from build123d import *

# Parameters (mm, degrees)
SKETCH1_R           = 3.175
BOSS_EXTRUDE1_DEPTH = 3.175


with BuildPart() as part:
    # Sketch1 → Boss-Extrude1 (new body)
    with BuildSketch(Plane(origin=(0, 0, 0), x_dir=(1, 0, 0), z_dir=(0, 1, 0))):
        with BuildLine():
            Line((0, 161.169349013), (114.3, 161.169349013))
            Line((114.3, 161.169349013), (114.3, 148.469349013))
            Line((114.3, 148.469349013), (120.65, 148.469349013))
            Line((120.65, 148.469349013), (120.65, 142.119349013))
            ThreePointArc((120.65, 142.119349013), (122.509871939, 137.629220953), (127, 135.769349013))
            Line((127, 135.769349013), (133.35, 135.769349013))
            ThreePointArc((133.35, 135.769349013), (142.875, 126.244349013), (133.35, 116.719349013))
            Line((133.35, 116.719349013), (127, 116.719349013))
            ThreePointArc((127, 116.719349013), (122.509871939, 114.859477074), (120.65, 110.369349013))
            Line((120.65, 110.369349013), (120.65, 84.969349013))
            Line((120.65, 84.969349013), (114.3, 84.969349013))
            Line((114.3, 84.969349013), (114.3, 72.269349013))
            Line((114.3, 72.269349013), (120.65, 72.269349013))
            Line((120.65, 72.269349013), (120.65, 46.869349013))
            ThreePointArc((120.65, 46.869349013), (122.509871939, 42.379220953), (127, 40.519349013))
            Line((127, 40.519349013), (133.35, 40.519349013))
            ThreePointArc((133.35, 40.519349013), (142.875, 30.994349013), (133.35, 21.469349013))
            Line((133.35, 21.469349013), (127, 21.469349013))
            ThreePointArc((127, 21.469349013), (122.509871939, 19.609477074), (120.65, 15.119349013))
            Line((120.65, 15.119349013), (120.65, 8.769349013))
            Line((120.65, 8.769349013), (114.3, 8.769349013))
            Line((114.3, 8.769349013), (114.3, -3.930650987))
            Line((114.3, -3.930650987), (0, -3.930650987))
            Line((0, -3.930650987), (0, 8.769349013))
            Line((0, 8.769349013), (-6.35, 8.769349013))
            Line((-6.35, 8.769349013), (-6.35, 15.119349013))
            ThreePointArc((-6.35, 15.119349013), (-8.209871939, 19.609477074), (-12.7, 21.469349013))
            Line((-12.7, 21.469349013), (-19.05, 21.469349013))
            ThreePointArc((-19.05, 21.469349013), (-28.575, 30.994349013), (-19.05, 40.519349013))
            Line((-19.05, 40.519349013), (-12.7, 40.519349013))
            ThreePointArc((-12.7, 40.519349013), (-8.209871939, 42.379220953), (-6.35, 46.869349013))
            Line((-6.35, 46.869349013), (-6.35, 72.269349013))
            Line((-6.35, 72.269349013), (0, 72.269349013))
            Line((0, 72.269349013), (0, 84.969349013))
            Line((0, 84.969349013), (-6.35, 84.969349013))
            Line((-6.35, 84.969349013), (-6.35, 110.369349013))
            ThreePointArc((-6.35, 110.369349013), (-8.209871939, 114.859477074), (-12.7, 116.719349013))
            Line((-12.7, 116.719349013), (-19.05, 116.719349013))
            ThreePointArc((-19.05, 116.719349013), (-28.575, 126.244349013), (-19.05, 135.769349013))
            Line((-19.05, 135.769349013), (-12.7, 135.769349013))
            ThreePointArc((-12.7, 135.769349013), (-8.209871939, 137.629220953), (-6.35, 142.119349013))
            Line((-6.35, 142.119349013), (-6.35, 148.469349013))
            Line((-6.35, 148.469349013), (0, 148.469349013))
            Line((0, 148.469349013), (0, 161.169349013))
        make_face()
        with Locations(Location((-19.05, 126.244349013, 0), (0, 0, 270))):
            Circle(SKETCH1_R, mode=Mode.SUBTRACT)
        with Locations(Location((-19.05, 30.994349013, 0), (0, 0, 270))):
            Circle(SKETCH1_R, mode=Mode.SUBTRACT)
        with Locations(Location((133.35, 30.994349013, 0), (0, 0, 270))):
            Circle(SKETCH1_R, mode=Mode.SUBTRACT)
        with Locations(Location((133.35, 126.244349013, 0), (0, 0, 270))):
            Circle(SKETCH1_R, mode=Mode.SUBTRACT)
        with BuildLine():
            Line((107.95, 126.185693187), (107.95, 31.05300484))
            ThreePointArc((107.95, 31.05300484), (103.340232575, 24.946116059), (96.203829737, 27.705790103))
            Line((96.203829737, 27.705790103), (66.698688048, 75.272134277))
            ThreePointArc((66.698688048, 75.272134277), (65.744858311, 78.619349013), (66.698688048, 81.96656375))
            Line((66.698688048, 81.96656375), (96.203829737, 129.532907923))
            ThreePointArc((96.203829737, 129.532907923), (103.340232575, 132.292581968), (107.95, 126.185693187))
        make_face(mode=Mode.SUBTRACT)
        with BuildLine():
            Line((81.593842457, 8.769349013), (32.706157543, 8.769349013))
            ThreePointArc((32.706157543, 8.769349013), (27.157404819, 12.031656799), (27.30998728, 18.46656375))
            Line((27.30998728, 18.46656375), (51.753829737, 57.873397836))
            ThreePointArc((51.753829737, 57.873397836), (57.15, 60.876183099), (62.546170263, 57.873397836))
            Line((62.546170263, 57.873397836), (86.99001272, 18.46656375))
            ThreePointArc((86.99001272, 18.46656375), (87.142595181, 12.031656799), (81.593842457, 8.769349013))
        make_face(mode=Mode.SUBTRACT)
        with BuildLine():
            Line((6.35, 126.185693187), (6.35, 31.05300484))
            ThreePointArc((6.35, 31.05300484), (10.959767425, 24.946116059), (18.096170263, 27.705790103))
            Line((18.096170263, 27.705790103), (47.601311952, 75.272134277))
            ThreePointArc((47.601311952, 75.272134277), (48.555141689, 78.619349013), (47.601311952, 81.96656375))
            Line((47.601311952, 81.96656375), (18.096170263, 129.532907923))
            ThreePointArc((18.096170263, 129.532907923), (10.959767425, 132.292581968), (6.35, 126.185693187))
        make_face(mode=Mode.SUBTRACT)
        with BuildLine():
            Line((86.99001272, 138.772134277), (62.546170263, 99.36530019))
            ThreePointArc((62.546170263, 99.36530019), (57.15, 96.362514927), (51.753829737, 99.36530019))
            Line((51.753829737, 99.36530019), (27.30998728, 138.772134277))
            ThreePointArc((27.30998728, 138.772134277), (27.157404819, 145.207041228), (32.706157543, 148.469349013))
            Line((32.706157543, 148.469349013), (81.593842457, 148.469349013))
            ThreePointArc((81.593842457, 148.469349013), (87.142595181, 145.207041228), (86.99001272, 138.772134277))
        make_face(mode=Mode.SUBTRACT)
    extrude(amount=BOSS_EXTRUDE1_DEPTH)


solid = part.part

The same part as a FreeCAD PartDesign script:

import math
import FreeCAD as App
import Part
import Sketcher
Q = App.Units.Quantity

doc = App.newDocument("Part")
body = doc.addObject("PartDesign::Body", "Body")

sketch1 = body.newObject("Sketcher::SketchObject", "Sketch")
sketch1.AttachmentSupport = (doc.getObject("XZ_Plane"), [""])
sketch1.MapMode = "FlatFace"
sketch1.addGeometry([
    Part.LineSegment(App.Vector(114.3, -161.169349, 0), App.Vector(0, -161.169349, 0)),
    Part.LineSegment(App.Vector(0, -161.169349, 0), App.Vector(0, -148.469349, 0)),
    Part.LineSegment(App.Vector(0, -148.469349, 0), App.Vector(-6.35, -148.469349, 0)),
    Part.LineSegment(App.Vector(-6.35, -148.469349, 0), App.Vector(-6.35, -142.119349, 0)),
    Part.ArcOfCircle(Part.Circle(App.Vector(-12.7, -142.119349, 0), App.Vector(0, 0, 1), 6.35), math.radians(0), math.radians(90)),
    Part.LineSegment(App.Vector(-12.7, -135.769349, 0), App.Vector(-19.05, -135.769349, 0)),
    Part.ArcOfCircle(Part.Circle(App.Vector(-19.05, -126.244349, 0), App.Vector(0, 0, 1), 9.525), math.radians(90), math.radians(270)),
    Part.LineSegment(App.Vector(-19.05, -116.719349, 0), App.Vector(-12.7, -116.719349, 0)),
    Part.ArcOfCircle(Part.Circle(App.Vector(-12.7, -110.369349, 0), App.Vector(0, 0, 1), 6.35), math.radians(-90), math.radians(0)),
    Part.LineSegment(App.Vector(-6.35, -110.369349, 0), App.Vector(-6.35, -84.969349, 0)),
    Part.LineSegment(App.Vector(-6.35, -84.969349, 0), App.Vector(0, -84.969349, 0)),
    Part.LineSegment(App.Vector(0, -84.969349, 0), App.Vector(0, -72.269349, 0)),
    Part.LineSegment(App.Vector(0, -72.269349, 0), App.Vector(-6.35, -72.269349, 0)),
    Part.LineSegment(App.Vector(-6.35, -72.269349, 0), App.Vector(-6.35, -46.869349, 0)),
    Part.ArcOfCircle(Part.Circle(App.Vector(-12.7, -46.869349, 0), App.Vector(0, 0, 1), 6.35), math.radians(0), math.radians(90)),
    Part.LineSegment(App.Vector(-12.7, -40.519349, 0), App.Vector(-19.05, -40.519349, 0)),
    Part.ArcOfCircle(Part.Circle(App.Vector(-19.05, -30.994349, 0), App.Vector(0, 0, 1), 9.525), math.radians(90), math.radians(270)),
    Part.LineSegment(App.Vector(-19.05, -21.469349, 0), App.Vector(-12.7, -21.469349, 0)),
    Part.ArcOfCircle(Part.Circle(App.Vector(-12.7, -15.119349, 0), App.Vector(0, 0, 1), 6.35), math.radians(-90), math.radians(0)),
    Part.LineSegment(App.Vector(-6.35, -15.119349, 0), App.Vector(-6.35, -8.769349, 0)),
    Part.LineSegment(App.Vector(-6.35, -8.769349, 0), App.Vector(0, -8.769349, 0)),
    Part.LineSegment(App.Vector(0, -8.769349, 0), App.Vector(0, 3.930651, 0)),
    Part.LineSegment(App.Vector(0, 3.930651, 0), App.Vector(114.3, 3.930651, 0)),
    Part.LineSegment(App.Vector(114.3, 3.930651, 0), App.Vector(114.3, -8.769349, 0)),
    Part.LineSegment(App.Vector(114.3, -8.769349, 0), App.Vector(120.65, -8.769349, 0)),
    Part.LineSegment(App.Vector(120.65, -8.769349, 0), App.Vector(120.65, -15.119349, 0)),
    Part.ArcOfCircle(Part.Circle(App.Vector(127, -15.119349, 0), App.Vector(0, 0, 1), 6.35), math.radians(180), math.radians(270)),
    Part.LineSegment(App.Vector(127, -21.469349, 0), App.Vector(133.35, -21.469349, 0)),
    Part.ArcOfCircle(Part.Circle(App.Vector(133.35, -30.994349, 0), App.Vector(0, 0, 1), 9.525), math.radians(-90), math.radians(90)),
    Part.LineSegment(App.Vector(133.35, -40.519349, 0), App.Vector(127, -40.519349, 0)),
    Part.ArcOfCircle(Part.Circle(App.Vector(127, -46.869349, 0), App.Vector(0, 0, 1), 6.35), math.radians(90), math.radians(180)),
    Part.LineSegment(App.Vector(120.65, -46.869349, 0), App.Vector(120.65, -72.269349, 0)),
    Part.LineSegment(App.Vector(120.65, -72.269349, 0), App.Vector(114.3, -72.269349, 0)),
    Part.LineSegment(App.Vector(114.3, -72.269349, 0), App.Vector(114.3, -84.969349, 0)),
    Part.LineSegment(App.Vector(114.3, -84.969349, 0), App.Vector(120.65, -84.969349, 0)),
    Part.LineSegment(App.Vector(120.65, -84.969349, 0), App.Vector(120.65, -110.369349, 0)),
    Part.ArcOfCircle(Part.Circle(App.Vector(127, -110.369349, 0), App.Vector(0, 0, 1), 6.35), math.radians(180), math.radians(270)),
    Part.LineSegment(App.Vector(127, -116.719349, 0), App.Vector(133.35, -116.719349, 0)),
    Part.ArcOfCircle(Part.Circle(App.Vector(133.35, -126.244349, 0), App.Vector(0, 0, 1), 9.525), math.radians(-90), math.radians(90)),
    Part.LineSegment(App.Vector(133.35, -135.769349, 0), App.Vector(127, -135.769349, 0)),
    Part.ArcOfCircle(Part.Circle(App.Vector(127, -142.119349, 0), App.Vector(0, 0, 1), 6.35), math.radians(90), math.radians(180)),
    Part.LineSegment(App.Vector(120.65, -142.119349, 0), App.Vector(120.65, -148.469349, 0)),
    Part.LineSegment(App.Vector(120.65, -148.469349, 0), App.Vector(114.3, -148.469349, 0)),
    Part.LineSegment(App.Vector(114.3, -148.469349, 0), App.Vector(114.3, -161.169349, 0)),
    Part.Circle(App.Vector(133.35, -30.994349, 0), App.Vector(0, 0, 1), 3.175),
    Part.LineSegment(App.Vector(81.593842, -8.769349, 0), App.Vector(32.706158, -8.769349, 0)),
    Part.ArcOfCircle(Part.Circle(App.Vector(32.706158, -15.119349, 0), App.Vector(0, 0, 1), 6.35), math.radians(90), math.radians(211.8111)),
    Part.LineSegment(App.Vector(27.309987, -18.466564, 0), App.Vector(51.75383, -57.873398, 0)),
    Part.ArcOfCircle(Part.Circle(App.Vector(57.15, -54.526183, 0), App.Vector(0, 0, 1), 6.35), math.radians(-148.1889), math.radians(-31.8111)),
    Part.LineSegment(App.Vector(62.54617, -57.873398, 0), App.Vector(86.990013, -18.466564, 0)),
    Part.ArcOfCircle(Part.Circle(App.Vector(81.593842, -15.119349, 0), App.Vector(0, 0, 1), 6.35), math.radians(-31.8111), math.radians(90)),
    Part.Circle(App.Vector(-19.05, -30.994349, 0), App.Vector(0, 0, 1), 3.175),
    Part.LineSegment(App.Vector(107.95, -126.185693, 0), App.Vector(107.95, -31.053005, 0)),
    Part.ArcOfCircle(Part.Circle(App.Vector(101.6, -31.053005, 0), App.Vector(0, 0, 1), 6.35), math.radians(0), math.radians(148.1889)),
    Part.LineSegment(App.Vector(96.20383, -27.70579, 0), App.Vector(66.698688, -75.272134, 0)),
    Part.ArcOfCircle(Part.Circle(App.Vector(72.094858, -78.619349, 0), App.Vector(0, 0, 1), 6.35), math.radians(148.1889), math.radians(211.8111)),
    Part.LineSegment(App.Vector(66.698688, -81.966564, 0), App.Vector(96.20383, -129.532908, 0)),
    Part.ArcOfCircle(Part.Circle(App.Vector(101.6, -126.185693, 0), App.Vector(0, 0, 1), 6.35), math.radians(-148.1889), math.radians(0)),
    Part.Circle(App.Vector(133.35, -126.244349, 0), App.Vector(0, 0, 1), 3.175),
    Part.ArcOfCircle(Part.Circle(App.Vector(12.7, -126.185693, 0), App.Vector(0, 0, 1), 6.35), math.radians(180), math.radians(328.1889)),
    Part.LineSegment(App.Vector(18.09617, -129.532908, 0), App.Vector(47.601312, -81.966564, 0)),
    Part.ArcOfCircle(Part.Circle(App.Vector(42.205142, -78.619349, 0), App.Vector(0, 0, 1), 6.35), math.radians(-31.8111), math.radians(31.8111)),
    Part.LineSegment(App.Vector(47.601312, -75.272134, 0), App.Vector(18.09617, -27.70579, 0)),
    Part.ArcOfCircle(Part.Circle(App.Vector(12.7, -31.053005, 0), App.Vector(0, 0, 1), 6.35), math.radians(31.8111), math.radians(180)),
    Part.LineSegment(App.Vector(6.35, -31.053005, 0), App.Vector(6.35, -126.185693, 0)),
    Part.LineSegment(App.Vector(86.990013, -138.772134, 0), App.Vector(62.54617, -99.3653, 0)),
    Part.ArcOfCircle(Part.Circle(App.Vector(57.15, -102.712515, 0), App.Vector(0, 0, 1), 6.35), math.radians(31.8111), math.radians(148.1889)),
    Part.LineSegment(App.Vector(51.75383, -99.3653, 0), App.Vector(27.309987, -138.772134, 0)),
    Part.ArcOfCircle(Part.Circle(App.Vector(32.706158, -142.119349, 0), App.Vector(0, 0, 1), 6.35), math.radians(148.1889), math.radians(270)),
    Part.LineSegment(App.Vector(32.706158, -148.469349, 0), App.Vector(81.593842, -148.469349, 0)),
    Part.ArcOfCircle(Part.Circle(App.Vector(81.593842, -142.119349, 0), App.Vector(0, 0, 1), 6.35), math.radians(-90), math.radians(31.8111)),
    Part.Circle(App.Vector(-19.05, -126.244349, 0), App.Vector(0, 0, 1), 3.175),
], False)
sketch1.addConstraint([
    Sketcher.Constraint("Coincident", 0, 2, 1, 1),
    Sketcher.Constraint("Coincident", 1, 2, 2, 1),
    Sketcher.Constraint("Coincident", 2, 2, 3, 1),
    Sketcher.Constraint("Tangent", 3, 2, 4, 1),
    Sketcher.Constraint("Tangent", 4, 2, 5, 1),
    Sketcher.Constraint("Tangent", 5, 2, 6, 2),
    Sketcher.Constraint("Tangent", 6, 1, 7, 1),
    Sketcher.Constraint("Tangent", 7, 2, 8, 1),
    Sketcher.Constraint("Tangent", 8, 2, 9, 1),
    Sketcher.Constraint("Coincident", 9, 2, 10, 1),
    Sketcher.Constraint("Coincident", 10, 2, 11, 1),
    Sketcher.Constraint("Coincident", 11, 2, 12, 1),
    Sketcher.Constraint("Coincident", 12, 2, 13, 1),
    Sketcher.Constraint("Tangent", 13, 2, 14, 1),
    Sketcher.Constraint("Tangent", 14, 2, 15, 1),
    Sketcher.Constraint("Tangent", 15, 2, 16, 2),
    Sketcher.Constraint("Tangent", 16, 1, 17, 1),
    Sketcher.Constraint("Tangent", 17, 2, 18, 1),
    Sketcher.Constraint("Tangent", 18, 2, 19, 1),
    Sketcher.Constraint("Coincident", 19, 2, 20, 1),
    Sketcher.Constraint("Coincident", 20, 2, 21, 1),
    Sketcher.Constraint("Coincident", 21, 2, 22, 1),
    Sketcher.Constraint("Coincident", 22, 2, 23, 1),
    Sketcher.Constraint("Coincident", 23, 2, 24, 1),
    Sketcher.Constraint("Coincident", 24, 2, 25, 1),
    Sketcher.Constraint("Tangent", 25, 2, 26, 1),
    Sketcher.Constraint("Tangent", 26, 2, 27, 1),
    Sketcher.Constraint("Tangent", 27, 2, 28, 2),
    Sketcher.Constraint("Tangent", 28, 1, 29, 1),
    Sketcher.Constraint("Tangent", 29, 2, 30, 1),
    Sketcher.Constraint("Tangent", 30, 2, 31, 1),
    Sketcher.Constraint("Coincident", 31, 2, 32, 1),
    Sketcher.Constraint("Coincident", 32, 2, 33, 1),
    Sketcher.Constraint("Coincident", 33, 2, 34, 1),
    Sketcher.Constraint("Coincident", 34, 2, 35, 1),
    Sketcher.Constraint("Tangent", 35, 2, 36, 1),
    Sketcher.Constraint("Tangent", 36, 2, 37, 1),
    Sketcher.Constraint("Tangent", 37, 2, 38, 2),
    Sketcher.Constraint("Tangent", 38, 1, 39, 1),
    Sketcher.Constraint("Tangent", 39, 2, 40, 1),
    Sketcher.Constraint("Tangent", 40, 2, 41, 1),
    Sketcher.Constraint("Coincident", 41, 2, 42, 1),
    Sketcher.Constraint("Coincident", 42, 2, 43, 1),
    Sketcher.Constraint("Coincident", 43, 2, 0, 1),
    Sketcher.Constraint("Tangent", 45, 2, 46, 1),
    Sketcher.Constraint("Tangent", 46, 2, 47, 1),
    Sketcher.Constraint("Tangent", 47, 2, 48, 1),
    Sketcher.Constraint("Tangent", 48, 2, 49, 1),
    Sketcher.Constraint("Tangent", 49, 2, 50, 1),
    Sketcher.Constraint("Tangent", 50, 2, 45, 1),
    Sketcher.Constraint("Tangent", 52, 2, 53, 1),
    Sketcher.Constraint("Tangent", 53, 2, 54, 1),
    Sketcher.Constraint("Tangent", 54, 2, 55, 1),
    Sketcher.Constraint("Tangent", 55, 2, 56, 1),
    Sketcher.Constraint("Tangent", 56, 2, 57, 1),
    Sketcher.Constraint("Tangent", 57, 2, 52, 1),
    Sketcher.Constraint("Tangent", 59, 2, 60, 1),
    Sketcher.Constraint("Tangent", 60, 2, 61, 1),
    Sketcher.Constraint("Tangent", 61, 2, 62, 1),
    Sketcher.Constraint("Tangent", 62, 2, 63, 1),
    Sketcher.Constraint("Tangent", 63, 2, 64, 1),
    Sketcher.Constraint("Tangent", 64, 2, 59, 1),
    Sketcher.Constraint("Tangent", 65, 2, 66, 1),
    Sketcher.Constraint("Tangent", 66, 2, 67, 1),
    Sketcher.Constraint("Tangent", 67, 2, 68, 1),
    Sketcher.Constraint("Tangent", 68, 2, 69, 1),
    Sketcher.Constraint("Tangent", 69, 2, 70, 1),
    Sketcher.Constraint("Tangent", 70, 2, 65, 1),
    Sketcher.Constraint("Horizontal", 0),
    Sketcher.Constraint("Vertical", 1),
    Sketcher.Constraint("Horizontal", 2),
    Sketcher.Constraint("Vertical", 3),
    Sketcher.Constraint("Horizontal", 5),
    Sketcher.Constraint("Horizontal", 7),
    Sketcher.Constraint("Vertical", 9),
    Sketcher.Constraint("Horizontal", 10),
    Sketcher.Constraint("Vertical", 11),
    Sketcher.Constraint("Horizontal", 12),
    Sketcher.Constraint("Vertical", 13),
    Sketcher.Constraint("Horizontal", 15),
    Sketcher.Constraint("Horizontal", 17),
    Sketcher.Constraint("Vertical", 19),
    Sketcher.Constraint("Horizontal", 20),
    Sketcher.Constraint("Vertical", 21),
    Sketcher.Constraint("Horizontal", 22),
    Sketcher.Constraint("Vertical", 23),
    Sketcher.Constraint("Horizontal", 24),
    Sketcher.Constraint("Vertical", 25),
    Sketcher.Constraint("Horizontal", 27),
    Sketcher.Constraint("Horizontal", 29),
    Sketcher.Constraint("Vertical", 31),
    Sketcher.Constraint("Horizontal", 32),
    Sketcher.Constraint("Vertical", 33),
    Sketcher.Constraint("Horizontal", 34),
    Sketcher.Constraint("Vertical", 35),
    Sketcher.Constraint("Horizontal", 37),
    Sketcher.Constraint("Horizontal", 39),
    Sketcher.Constraint("Vertical", 41),
    Sketcher.Constraint("Horizontal", 42),
    Sketcher.Constraint("Vertical", 43),
    Sketcher.Constraint("Horizontal", 45),
    Sketcher.Constraint("Vertical", 52),
    Sketcher.Constraint("Vertical", 64),
    Sketcher.Constraint("Horizontal", 69),
    Sketcher.Constraint("Coincident", 44, 3, 28, 3),
    Sketcher.Constraint("Coincident", 51, 3, 16, 3),
    Sketcher.Constraint("Coincident", 58, 3, 38, 3),
    Sketcher.Constraint("Coincident", 71, 3, 6, 3),
    Sketcher.Constraint("Equal", 4, 8),
    Sketcher.Constraint("Equal", 8, 14),
    Sketcher.Constraint("Equal", 6, 16),
    Sketcher.Constraint("Equal", 14, 18),
    Sketcher.Constraint("Equal", 18, 26),
    Sketcher.Constraint("Equal", 16, 28),
    Sketcher.Constraint("Equal", 26, 30),
    Sketcher.Constraint("Equal", 30, 36),
    Sketcher.Constraint("Equal", 28, 38),
    Sketcher.Constraint("Equal", 36, 40),
    Sketcher.Constraint("Equal", 40, 46),
    Sketcher.Constraint("Equal", 46, 48),
    Sketcher.Constraint("Equal", 48, 50),
    Sketcher.Constraint("Equal", 44, 51),
    Sketcher.Constraint("Equal", 50, 53),
    Sketcher.Constraint("Equal", 53, 55),
    Sketcher.Constraint("Equal", 55, 57),
    Sketcher.Constraint("Equal", 51, 58),
    Sketcher.Constraint("Equal", 57, 59),
    Sketcher.Constraint("Equal", 59, 61),
    Sketcher.Constraint("Equal", 61, 63),
    Sketcher.Constraint("Equal", 63, 66),
    Sketcher.Constraint("Equal", 66, 68),
    Sketcher.Constraint("Equal", 68, 70),
    Sketcher.Constraint("Equal", 58, 71),
    Sketcher.Constraint("PointOnObject", 0, 2, -2),
    Sketcher.Constraint("PointOnObject", 10, 2, -2),
    Sketcher.Constraint("PointOnObject", 20, 2, -2),
    Sketcher.Constraint("Parallel", 49, 54),
    Sketcher.Constraint("Parallel", 47, 56),
    Sketcher.Constraint("Parallel", 54, 60),
    Sketcher.Constraint("Parallel", 56, 62),
    Sketcher.Constraint("Parallel", 62, 65),
    Sketcher.Constraint("Parallel", 60, 67),
    Sketcher.Constraint("Horizontal", 18, 3, 26, 3),
    Sketcher.Constraint("Horizontal", 8, 3, 36, 3),
    Sketcher.Constraint("Horizontal", 26, 3, 46, 3),
    Sketcher.Constraint("Horizontal", 57, 3, 59, 3),
    Sketcher.Constraint("Horizontal", 55, 3, 61, 3),
    Sketcher.Constraint("Horizontal", 53, 3, 63, 3),
    Sketcher.Constraint("Horizontal", 40, 3, 68, 3),
    Sketcher.Constraint("Horizontal", 20, 2, 23, 2),
    Sketcher.Constraint("Horizontal", 12, 2, 31, 2),
    Sketcher.Constraint("Horizontal", 10, 2, 33, 2),
    Sketcher.Constraint("Horizontal", 2, 2, 41, 2),
    Sketcher.Constraint("Horizontal", 24, 2, 45, 2),
    Sketcher.Constraint("Horizontal", 42, 2, 68, 2),
    Sketcher.Constraint("Vertical", 4, 3, 8, 3),
    Sketcher.Constraint("Vertical", 8, 3, 14, 3),
    Sketcher.Constraint("Vertical", 6, 3, 16, 3),
    Sketcher.Constraint("Vertical", 14, 3, 18, 3),
    Sketcher.Constraint("Vertical", 26, 3, 30, 3),
    Sketcher.Constraint("Vertical", 30, 3, 36, 3),
    Sketcher.Constraint("Vertical", 28, 3, 38, 3),
    Sketcher.Constraint("Vertical", 36, 3, 40, 3),
    Sketcher.Constraint("Vertical", 48, 3, 66, 3),
    Sketcher.Constraint("Vertical", 46, 3, 68, 3),
    Sketcher.Constraint("Vertical", 23, 2, 32, 2),
    Sketcher.Constraint("Vertical", 33, 2, 42, 2),
    Sketcher.Constraint("Equal", 2, 5),
    Sketcher.Constraint("Equal", 20, 24),
    Sketcher.Constraint("Equal", 24, 27),
    Sketcher.Constraint("Equal", 42, 3),
    Sketcher.Constraint("Equal", 1, 11),
    Sketcher.Constraint("Equal", 9, 13),
    Sketcher.Constraint("Equal", 11, 21),
    Sketcher.Constraint("Diameter", 44, Q("0.25 in")),
    Sketcher.Constraint("DistanceY", 9, 1, 9, 2, Q("1 in")),
    Sketcher.Constraint("Radius", 4, Q("0.25 in")),
    Sketcher.Constraint("DistanceX", 0, 2, 0, 1, Q("4.5 in")),
    Sketcher.Constraint("DistanceY", 1, 1, 1, 2, Q("0.5 in")),
    Sketcher.Constraint("DistanceX", -1, 1, 53, 3, Q("4 in")),
    Sketcher.Constraint("Radius", 6, Q("0.375 in")),
    Sketcher.Constraint("DistanceX", -1, 1, 59, 3, Q("0.5 in")),
    Sketcher.Constraint("DistanceX", -1, 1, 48, 3, Q("2.25 in")),
    Sketcher.Constraint("DistanceY", 48, 3, -1, 1, Q("2.1467001 in")),
    Sketcher.Constraint("DistanceY", 66, 3, -1, 1, Q("4.0437998 in")),
    Sketcher.Constraint("DistanceY", 52, 1, 52, 2, Q("95.132688 mm")),
    Sketcher.Constraint("DistanceY", 65, 2, -1, 1, Q("99.3653 mm")),
    Sketcher.Constraint("DistanceY", 55, 3, -1, 1, Q("78.619349 mm")),
])
pad1 = body.newObject("PartDesign::Pad", "Pad")
pad1.Profile = sketch1
pad1.Length = Q("0.125 in")
pad1.Reversed = True

doc.recompute()
